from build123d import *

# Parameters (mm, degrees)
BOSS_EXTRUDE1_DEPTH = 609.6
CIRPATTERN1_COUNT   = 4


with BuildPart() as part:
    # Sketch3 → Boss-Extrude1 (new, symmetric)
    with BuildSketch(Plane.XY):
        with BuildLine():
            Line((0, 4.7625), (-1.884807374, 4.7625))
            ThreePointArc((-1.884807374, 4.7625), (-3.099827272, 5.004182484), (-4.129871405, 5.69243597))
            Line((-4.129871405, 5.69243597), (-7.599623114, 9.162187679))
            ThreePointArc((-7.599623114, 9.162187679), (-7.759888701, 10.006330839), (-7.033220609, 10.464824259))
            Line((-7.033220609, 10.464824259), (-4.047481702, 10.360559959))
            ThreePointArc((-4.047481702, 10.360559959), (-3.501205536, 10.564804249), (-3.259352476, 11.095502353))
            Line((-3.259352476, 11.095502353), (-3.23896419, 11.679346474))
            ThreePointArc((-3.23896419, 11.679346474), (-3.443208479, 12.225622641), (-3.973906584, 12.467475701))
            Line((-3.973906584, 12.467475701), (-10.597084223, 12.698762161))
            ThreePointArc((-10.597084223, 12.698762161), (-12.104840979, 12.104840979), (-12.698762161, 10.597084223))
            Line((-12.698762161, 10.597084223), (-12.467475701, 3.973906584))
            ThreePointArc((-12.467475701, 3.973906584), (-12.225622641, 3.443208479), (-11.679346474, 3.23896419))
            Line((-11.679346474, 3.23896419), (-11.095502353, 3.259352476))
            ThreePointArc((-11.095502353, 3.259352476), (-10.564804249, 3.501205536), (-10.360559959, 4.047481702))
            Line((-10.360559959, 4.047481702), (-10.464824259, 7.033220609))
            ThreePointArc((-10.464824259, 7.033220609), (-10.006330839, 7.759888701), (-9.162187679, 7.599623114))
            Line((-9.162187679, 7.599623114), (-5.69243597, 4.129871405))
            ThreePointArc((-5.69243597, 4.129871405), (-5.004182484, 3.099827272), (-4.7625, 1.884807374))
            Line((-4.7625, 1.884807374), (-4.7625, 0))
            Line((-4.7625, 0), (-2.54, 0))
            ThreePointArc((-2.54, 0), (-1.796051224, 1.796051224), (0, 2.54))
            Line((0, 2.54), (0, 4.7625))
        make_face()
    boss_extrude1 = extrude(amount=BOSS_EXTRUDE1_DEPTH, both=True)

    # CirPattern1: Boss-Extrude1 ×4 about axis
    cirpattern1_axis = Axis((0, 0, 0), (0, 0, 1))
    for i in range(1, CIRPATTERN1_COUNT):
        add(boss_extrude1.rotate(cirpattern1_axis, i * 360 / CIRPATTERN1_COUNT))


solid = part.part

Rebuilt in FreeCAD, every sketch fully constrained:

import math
import FreeCAD as App
import Part
import Sketcher
Q = App.Units.Quantity

doc = App.newDocument("Part")
body = doc.addObject("PartDesign::Body", "Body")

sketch1 = body.newObject("Sketcher::SketchObject", "Sketch")
sketch1.AttachmentSupport = (doc.getObject("XY_Plane"), [""])
sketch1.MapMode = "FlatFace"
sketch1.addGeometry(Part.LineSegment(App.Vector(0, 4.8, 0), App.Vector(-1.9, 4.8, 0)), False)
sketch1.addGeometry(Part.ArcOfCircle(Part.Circle(App.Vector(-1.9, 7.9, 0), App.Vector(0, 0, 1), 3.2), math.radians(-135), math.radians(-90)), False)
sketch1.addGeometry(Part.LineSegment(App.Vector(-4.1, 5.7, 0), App.Vector(-7.6, 9.2, 0)), False)
sketch1.addGeometry(Part.ArcOfCircle(Part.Circle(App.Vector(-7.1, 9.7, 0), App.Vector(0, 0, 1), 0.8), math.radians(88), math.radians(225)), False)
sketch1.addGeometry(Part.LineSegment(App.Vector(-7, 10.5, 0), App.Vector(-4, 10.4, 0)), False)
sketch1.addGeometry(Part.ArcOfCircle(Part.Circle(App.Vector(-4, 11.1, 0), App.Vector(0, 0, 1), 0.8), math.radians(-92), math.radians(-2)), False)
sketch1.addGeometry(Part.LineSegment(App.Vector(-3.3, 11.1, 0), App.Vector(-3.2, 11.7, 0)), False)
sketch1.addGeometry(Part.ArcOfCircle(Part.Circle(App.Vector(-4, 11.7, 0), App.Vector(0, 0, 1), 0.8), math.radians(-2), math.radians(88)), False)
sketch1.addGeometry(Part.LineSegment(App.Vector(-4, 12.5, 0), App.Vector(-10.6, 12.7, 0)), False)
sketch1.addGeometry(Part.ArcOfCircle(Part.Circle(App.Vector(-10.7, 10.7, 0), App.Vector(0, 0, 1), 2), math.radians(88), math.radians(182)), False)
sketch1.addGeometry(Part.LineSegment(App.Vector(-12.7, 10.6, 0), App.Vector(-12.5, 4, 0)), False)
sketch1.addGeometry(Part.ArcOfCircle(Part.Circle(App.Vector(-11.7, 4, 0), App.Vector(0, 0, 1), 0.8), math.radians(-178), math.radians(-88)), False)
sketch1.addGeometry(Part.LineSegment(App.Vector(-11.7, 3.2, 0), App.Vector(-11.1, 3.3, 0)), False)
sketch1.addGeometry(Part.ArcOfCircle(Part.Circle(App.Vector(-11.1, 4, 0), App.Vector(0, 0, 1), 0.8), math.radians(-88), math.radians(2)), False)
sketch1.addGeometry(Part.LineSegment(App.Vector(-10.4, 4, 0), App.Vector(-10.5, 7, 0)), False)
sketch1.addGeometry(Part.ArcOfCircle(Part.Circle(App.Vector(-9.7, 7.1, 0), App.Vector(0, 0, 1), 0.8), math.radians(45), math.radians(182)), False)
sketch1.addGeometry(Part.LineSegment(App.Vector(-9.2, 7.6, 0), App.Vector(-5.7, 4.1, 0)), False)
sketch1.addGeometry(Part.ArcOfCircle(Part.Circle(App.Vector(-7.9, 1.9, 0), App.Vector(0, 0, 1), 3.2), math.radians(0), math.radians(45)), False)
sketch1.addGeometry(Part.LineSegment(App.Vector(-4.8, 1.9, 0), App.Vector(-4.8, 0, 0)), False)
sketch1.addGeometry(Part.LineSegment(App.Vector(-4.8, 0, 0), App.Vector(-2.5, 0, 0)), False)
sketch1.addGeometry(Part.ArcOfCircle(Part.Circle(App.Vector(0, 0, 0), App.Vector(0, 0, 1), 2.5), math.radians(90), math.radians(180)), False)
sketch1.addGeometry(Part.LineSegment(App.Vector(0, 2.5, 0), App.Vector(0, 4.8, 0)), False)
sketch1.addConstraint(Sketcher.Constraint("Tangent", 0, 2, 1, 2))
sketch1.addConstraint(Sketcher.Constraint("Tangent", 1, 1, 2, 1))
sketch1.addConstraint(Sketcher.Constraint("Tangent", 2, 2, 3, 2))
sketch1.addConstraint(Sketcher.Constraint("Tangent", 3, 1, 4, 1))
sketch1.addConstraint(Sketcher.Constraint("Tangent", 4, 2, 5, 1))
sketch1.addConstraint(Sketcher.Constraint("Tangent", 5, 2, 6, 1))
sketch1.addConstraint(Sketcher.Constraint("Tangent", 6, 2, 7, 1))
sketch1.addConstraint(Sketcher.Constraint("Tangent", 7, 2, 8, 1))
sketch1.addConstraint(Sketcher.Constraint("Tangent", 8, 2, 9, 1))
sketch1.addConstraint(Sketcher.Constraint("Tangent", 9, 2, 10, 1))
sketch1.addConstraint(Sketcher.Constraint("Tangent", 10, 2, 11, 1))
sketch1.addConstraint(Sketcher.Constraint("Tangent", 11, 2, 12, 1))
sketch1.addConstraint(Sketcher.Constraint("Tangent", 12, 2, 13, 1))
sketch1.addConstraint(Sketcher.Constraint("Tangent", 13, 2, 14, 1))
sketch1.addConstraint(Sketcher.Constraint("Tangent", 14, 2, 15, 2))
sketch1.addConstraint(Sketcher.Constraint("Tangent", 15, 1, 16, 1))
sketch1.addConstraint(Sketcher.Constraint("Tangent", 16, 2, 17, 2))
sketch1.addConstraint(Sketcher.Constraint("Tangent", 17, 1, 18, 1))
sketch1.addConstraint(Sketcher.Constraint("Coincident", 18, 2, 19, 1))
sketch1.addConstraint(Sketcher.Constraint("Coincident", 19, 2, 20, 2))
sketch1.addConstraint(Sketcher.Constraint("Coincident", 20, 1, 21, 1))
sketch1.addConstraint(Sketcher.Constraint("Coincident", 21, 2, 0, 1))
sketch1.addConstraint(Sketcher.Constraint("Horizontal", 0))
sketch1.addConstraint(Sketcher.Constraint("Vertical", 18))
sketch1.addConstraint(Sketcher.Constraint("Horizontal", 19))
sketch1.addConstraint(Sketcher.Constraint("Vertical", 21))
sketch1.addConstraint(Sketcher.Constraint("Coincident", 20, 3, -1, 1))
sketch1.addConstraint(Sketcher.Constraint("Equal", 5, 7))
sketch1.addConstraint(Sketcher.Constraint("Equal", 7, 11))
sketch1.addConstraint(Sketcher.Constraint("Equal", 11, 13))
sketch1.addConstraint(Sketcher.Constraint("Equal", 3, 15))
sketch1.addConstraint(Sketcher.Constraint("Equal", 1, 17))
sketch1.addConstraint(Sketcher.Constraint("PointOnObject", 18, 2, -1))
sketch1.addConstraint(Sketcher.Constraint("PointOnObject", 20, 1, -2))
sketch1.addConstraint(Sketcher.Constraint("Perpendicular", 4, 6))
sketch1.addConstraint(Sketcher.Constraint("Perpendicular", 6, 8))
sketch1.addConstraint(Sketcher.Constraint("Perpendicular", 10, 12))
sketch1.addConstraint(Sketcher.Constraint("Perpendicular", 12, 14))
sketch1.addConstraint(Sketcher.Constraint("Parallel", 2, 16))
sketch1.addConstraint(Sketcher.Constraint("Equal", 0, 18))
sketch1.addConstraint(Sketcher.Constraint("Equal", 19, 21))
sketch1.addConstraint(Sketcher.Constraint("Equal", 8, 10))
sketch1.addConstraint(Sketcher.Constraint("Equal", 6, 12))
sketch1.addConstraint(Sketcher.Constraint("Equal", 4, 14))
sketch1.addConstraint(Sketcher.Constraint("Equal", 2, 16))
sketch1.addConstraint(Sketcher.Constraint("Radius", 20, Q("0.1 in")))
sketch1.addConstraint(Sketcher.Constraint("Radius", 5, Q("0.03 in")))
sketch1.addConstraint(Sketcher.Constraint("Radius", 9, Q("0.08 in")))
sketch1.addConstraint(Sketcher.Constraint("Angle", 2, Q("135 deg")))
sketch1.addConstraint(Sketcher.Constraint("Angle", 4, Q("-2 deg")))
sketch1.addConstraint(Sketcher.Constraint("Radius", 1, Q("0.125 in")))
sketch1.addConstraint(Sketcher.Constraint("DistanceX", 9, 3, -1, 1, Q("0.42 in")))
sketch1.addConstraint(Sketcher.Constraint("Distance", 6, Q("0.023 in")))
sketch1.addConstraint(Sketcher.Constraint("DistanceX", 19, 1, 19, 2, Q("0.0875 in")))
sketch1.addConstraint(Sketcher.Constraint("Radius", 3, 0.763339))
sketch1.addConstraint(Sketcher.Constraint("DistanceY", 11, 3, 1, 3, Q("0.155 in")))
sketch1.addConstraint(Sketcher.Constraint("DistanceY", 15, 3, 8, 2, 5.638901))
pad1 = body.newObject("PartDesign::Pad", "Pad")
pad1.Profile = sketch1
pad1.Length = Q("48 in")
pad1.Midplane = True
doc.recompute()

polarpattern = body.newObject("PartDesign::PolarPattern", "PolarPattern")
polarpattern.Originals = [pad1]
polarpattern.Axis = (doc.getObject("Z_Axis"), [""])
polarpattern.Angle = 360
polarpattern.Occurrences = 4
body.Tip = polarpattern

doc.recompute()
